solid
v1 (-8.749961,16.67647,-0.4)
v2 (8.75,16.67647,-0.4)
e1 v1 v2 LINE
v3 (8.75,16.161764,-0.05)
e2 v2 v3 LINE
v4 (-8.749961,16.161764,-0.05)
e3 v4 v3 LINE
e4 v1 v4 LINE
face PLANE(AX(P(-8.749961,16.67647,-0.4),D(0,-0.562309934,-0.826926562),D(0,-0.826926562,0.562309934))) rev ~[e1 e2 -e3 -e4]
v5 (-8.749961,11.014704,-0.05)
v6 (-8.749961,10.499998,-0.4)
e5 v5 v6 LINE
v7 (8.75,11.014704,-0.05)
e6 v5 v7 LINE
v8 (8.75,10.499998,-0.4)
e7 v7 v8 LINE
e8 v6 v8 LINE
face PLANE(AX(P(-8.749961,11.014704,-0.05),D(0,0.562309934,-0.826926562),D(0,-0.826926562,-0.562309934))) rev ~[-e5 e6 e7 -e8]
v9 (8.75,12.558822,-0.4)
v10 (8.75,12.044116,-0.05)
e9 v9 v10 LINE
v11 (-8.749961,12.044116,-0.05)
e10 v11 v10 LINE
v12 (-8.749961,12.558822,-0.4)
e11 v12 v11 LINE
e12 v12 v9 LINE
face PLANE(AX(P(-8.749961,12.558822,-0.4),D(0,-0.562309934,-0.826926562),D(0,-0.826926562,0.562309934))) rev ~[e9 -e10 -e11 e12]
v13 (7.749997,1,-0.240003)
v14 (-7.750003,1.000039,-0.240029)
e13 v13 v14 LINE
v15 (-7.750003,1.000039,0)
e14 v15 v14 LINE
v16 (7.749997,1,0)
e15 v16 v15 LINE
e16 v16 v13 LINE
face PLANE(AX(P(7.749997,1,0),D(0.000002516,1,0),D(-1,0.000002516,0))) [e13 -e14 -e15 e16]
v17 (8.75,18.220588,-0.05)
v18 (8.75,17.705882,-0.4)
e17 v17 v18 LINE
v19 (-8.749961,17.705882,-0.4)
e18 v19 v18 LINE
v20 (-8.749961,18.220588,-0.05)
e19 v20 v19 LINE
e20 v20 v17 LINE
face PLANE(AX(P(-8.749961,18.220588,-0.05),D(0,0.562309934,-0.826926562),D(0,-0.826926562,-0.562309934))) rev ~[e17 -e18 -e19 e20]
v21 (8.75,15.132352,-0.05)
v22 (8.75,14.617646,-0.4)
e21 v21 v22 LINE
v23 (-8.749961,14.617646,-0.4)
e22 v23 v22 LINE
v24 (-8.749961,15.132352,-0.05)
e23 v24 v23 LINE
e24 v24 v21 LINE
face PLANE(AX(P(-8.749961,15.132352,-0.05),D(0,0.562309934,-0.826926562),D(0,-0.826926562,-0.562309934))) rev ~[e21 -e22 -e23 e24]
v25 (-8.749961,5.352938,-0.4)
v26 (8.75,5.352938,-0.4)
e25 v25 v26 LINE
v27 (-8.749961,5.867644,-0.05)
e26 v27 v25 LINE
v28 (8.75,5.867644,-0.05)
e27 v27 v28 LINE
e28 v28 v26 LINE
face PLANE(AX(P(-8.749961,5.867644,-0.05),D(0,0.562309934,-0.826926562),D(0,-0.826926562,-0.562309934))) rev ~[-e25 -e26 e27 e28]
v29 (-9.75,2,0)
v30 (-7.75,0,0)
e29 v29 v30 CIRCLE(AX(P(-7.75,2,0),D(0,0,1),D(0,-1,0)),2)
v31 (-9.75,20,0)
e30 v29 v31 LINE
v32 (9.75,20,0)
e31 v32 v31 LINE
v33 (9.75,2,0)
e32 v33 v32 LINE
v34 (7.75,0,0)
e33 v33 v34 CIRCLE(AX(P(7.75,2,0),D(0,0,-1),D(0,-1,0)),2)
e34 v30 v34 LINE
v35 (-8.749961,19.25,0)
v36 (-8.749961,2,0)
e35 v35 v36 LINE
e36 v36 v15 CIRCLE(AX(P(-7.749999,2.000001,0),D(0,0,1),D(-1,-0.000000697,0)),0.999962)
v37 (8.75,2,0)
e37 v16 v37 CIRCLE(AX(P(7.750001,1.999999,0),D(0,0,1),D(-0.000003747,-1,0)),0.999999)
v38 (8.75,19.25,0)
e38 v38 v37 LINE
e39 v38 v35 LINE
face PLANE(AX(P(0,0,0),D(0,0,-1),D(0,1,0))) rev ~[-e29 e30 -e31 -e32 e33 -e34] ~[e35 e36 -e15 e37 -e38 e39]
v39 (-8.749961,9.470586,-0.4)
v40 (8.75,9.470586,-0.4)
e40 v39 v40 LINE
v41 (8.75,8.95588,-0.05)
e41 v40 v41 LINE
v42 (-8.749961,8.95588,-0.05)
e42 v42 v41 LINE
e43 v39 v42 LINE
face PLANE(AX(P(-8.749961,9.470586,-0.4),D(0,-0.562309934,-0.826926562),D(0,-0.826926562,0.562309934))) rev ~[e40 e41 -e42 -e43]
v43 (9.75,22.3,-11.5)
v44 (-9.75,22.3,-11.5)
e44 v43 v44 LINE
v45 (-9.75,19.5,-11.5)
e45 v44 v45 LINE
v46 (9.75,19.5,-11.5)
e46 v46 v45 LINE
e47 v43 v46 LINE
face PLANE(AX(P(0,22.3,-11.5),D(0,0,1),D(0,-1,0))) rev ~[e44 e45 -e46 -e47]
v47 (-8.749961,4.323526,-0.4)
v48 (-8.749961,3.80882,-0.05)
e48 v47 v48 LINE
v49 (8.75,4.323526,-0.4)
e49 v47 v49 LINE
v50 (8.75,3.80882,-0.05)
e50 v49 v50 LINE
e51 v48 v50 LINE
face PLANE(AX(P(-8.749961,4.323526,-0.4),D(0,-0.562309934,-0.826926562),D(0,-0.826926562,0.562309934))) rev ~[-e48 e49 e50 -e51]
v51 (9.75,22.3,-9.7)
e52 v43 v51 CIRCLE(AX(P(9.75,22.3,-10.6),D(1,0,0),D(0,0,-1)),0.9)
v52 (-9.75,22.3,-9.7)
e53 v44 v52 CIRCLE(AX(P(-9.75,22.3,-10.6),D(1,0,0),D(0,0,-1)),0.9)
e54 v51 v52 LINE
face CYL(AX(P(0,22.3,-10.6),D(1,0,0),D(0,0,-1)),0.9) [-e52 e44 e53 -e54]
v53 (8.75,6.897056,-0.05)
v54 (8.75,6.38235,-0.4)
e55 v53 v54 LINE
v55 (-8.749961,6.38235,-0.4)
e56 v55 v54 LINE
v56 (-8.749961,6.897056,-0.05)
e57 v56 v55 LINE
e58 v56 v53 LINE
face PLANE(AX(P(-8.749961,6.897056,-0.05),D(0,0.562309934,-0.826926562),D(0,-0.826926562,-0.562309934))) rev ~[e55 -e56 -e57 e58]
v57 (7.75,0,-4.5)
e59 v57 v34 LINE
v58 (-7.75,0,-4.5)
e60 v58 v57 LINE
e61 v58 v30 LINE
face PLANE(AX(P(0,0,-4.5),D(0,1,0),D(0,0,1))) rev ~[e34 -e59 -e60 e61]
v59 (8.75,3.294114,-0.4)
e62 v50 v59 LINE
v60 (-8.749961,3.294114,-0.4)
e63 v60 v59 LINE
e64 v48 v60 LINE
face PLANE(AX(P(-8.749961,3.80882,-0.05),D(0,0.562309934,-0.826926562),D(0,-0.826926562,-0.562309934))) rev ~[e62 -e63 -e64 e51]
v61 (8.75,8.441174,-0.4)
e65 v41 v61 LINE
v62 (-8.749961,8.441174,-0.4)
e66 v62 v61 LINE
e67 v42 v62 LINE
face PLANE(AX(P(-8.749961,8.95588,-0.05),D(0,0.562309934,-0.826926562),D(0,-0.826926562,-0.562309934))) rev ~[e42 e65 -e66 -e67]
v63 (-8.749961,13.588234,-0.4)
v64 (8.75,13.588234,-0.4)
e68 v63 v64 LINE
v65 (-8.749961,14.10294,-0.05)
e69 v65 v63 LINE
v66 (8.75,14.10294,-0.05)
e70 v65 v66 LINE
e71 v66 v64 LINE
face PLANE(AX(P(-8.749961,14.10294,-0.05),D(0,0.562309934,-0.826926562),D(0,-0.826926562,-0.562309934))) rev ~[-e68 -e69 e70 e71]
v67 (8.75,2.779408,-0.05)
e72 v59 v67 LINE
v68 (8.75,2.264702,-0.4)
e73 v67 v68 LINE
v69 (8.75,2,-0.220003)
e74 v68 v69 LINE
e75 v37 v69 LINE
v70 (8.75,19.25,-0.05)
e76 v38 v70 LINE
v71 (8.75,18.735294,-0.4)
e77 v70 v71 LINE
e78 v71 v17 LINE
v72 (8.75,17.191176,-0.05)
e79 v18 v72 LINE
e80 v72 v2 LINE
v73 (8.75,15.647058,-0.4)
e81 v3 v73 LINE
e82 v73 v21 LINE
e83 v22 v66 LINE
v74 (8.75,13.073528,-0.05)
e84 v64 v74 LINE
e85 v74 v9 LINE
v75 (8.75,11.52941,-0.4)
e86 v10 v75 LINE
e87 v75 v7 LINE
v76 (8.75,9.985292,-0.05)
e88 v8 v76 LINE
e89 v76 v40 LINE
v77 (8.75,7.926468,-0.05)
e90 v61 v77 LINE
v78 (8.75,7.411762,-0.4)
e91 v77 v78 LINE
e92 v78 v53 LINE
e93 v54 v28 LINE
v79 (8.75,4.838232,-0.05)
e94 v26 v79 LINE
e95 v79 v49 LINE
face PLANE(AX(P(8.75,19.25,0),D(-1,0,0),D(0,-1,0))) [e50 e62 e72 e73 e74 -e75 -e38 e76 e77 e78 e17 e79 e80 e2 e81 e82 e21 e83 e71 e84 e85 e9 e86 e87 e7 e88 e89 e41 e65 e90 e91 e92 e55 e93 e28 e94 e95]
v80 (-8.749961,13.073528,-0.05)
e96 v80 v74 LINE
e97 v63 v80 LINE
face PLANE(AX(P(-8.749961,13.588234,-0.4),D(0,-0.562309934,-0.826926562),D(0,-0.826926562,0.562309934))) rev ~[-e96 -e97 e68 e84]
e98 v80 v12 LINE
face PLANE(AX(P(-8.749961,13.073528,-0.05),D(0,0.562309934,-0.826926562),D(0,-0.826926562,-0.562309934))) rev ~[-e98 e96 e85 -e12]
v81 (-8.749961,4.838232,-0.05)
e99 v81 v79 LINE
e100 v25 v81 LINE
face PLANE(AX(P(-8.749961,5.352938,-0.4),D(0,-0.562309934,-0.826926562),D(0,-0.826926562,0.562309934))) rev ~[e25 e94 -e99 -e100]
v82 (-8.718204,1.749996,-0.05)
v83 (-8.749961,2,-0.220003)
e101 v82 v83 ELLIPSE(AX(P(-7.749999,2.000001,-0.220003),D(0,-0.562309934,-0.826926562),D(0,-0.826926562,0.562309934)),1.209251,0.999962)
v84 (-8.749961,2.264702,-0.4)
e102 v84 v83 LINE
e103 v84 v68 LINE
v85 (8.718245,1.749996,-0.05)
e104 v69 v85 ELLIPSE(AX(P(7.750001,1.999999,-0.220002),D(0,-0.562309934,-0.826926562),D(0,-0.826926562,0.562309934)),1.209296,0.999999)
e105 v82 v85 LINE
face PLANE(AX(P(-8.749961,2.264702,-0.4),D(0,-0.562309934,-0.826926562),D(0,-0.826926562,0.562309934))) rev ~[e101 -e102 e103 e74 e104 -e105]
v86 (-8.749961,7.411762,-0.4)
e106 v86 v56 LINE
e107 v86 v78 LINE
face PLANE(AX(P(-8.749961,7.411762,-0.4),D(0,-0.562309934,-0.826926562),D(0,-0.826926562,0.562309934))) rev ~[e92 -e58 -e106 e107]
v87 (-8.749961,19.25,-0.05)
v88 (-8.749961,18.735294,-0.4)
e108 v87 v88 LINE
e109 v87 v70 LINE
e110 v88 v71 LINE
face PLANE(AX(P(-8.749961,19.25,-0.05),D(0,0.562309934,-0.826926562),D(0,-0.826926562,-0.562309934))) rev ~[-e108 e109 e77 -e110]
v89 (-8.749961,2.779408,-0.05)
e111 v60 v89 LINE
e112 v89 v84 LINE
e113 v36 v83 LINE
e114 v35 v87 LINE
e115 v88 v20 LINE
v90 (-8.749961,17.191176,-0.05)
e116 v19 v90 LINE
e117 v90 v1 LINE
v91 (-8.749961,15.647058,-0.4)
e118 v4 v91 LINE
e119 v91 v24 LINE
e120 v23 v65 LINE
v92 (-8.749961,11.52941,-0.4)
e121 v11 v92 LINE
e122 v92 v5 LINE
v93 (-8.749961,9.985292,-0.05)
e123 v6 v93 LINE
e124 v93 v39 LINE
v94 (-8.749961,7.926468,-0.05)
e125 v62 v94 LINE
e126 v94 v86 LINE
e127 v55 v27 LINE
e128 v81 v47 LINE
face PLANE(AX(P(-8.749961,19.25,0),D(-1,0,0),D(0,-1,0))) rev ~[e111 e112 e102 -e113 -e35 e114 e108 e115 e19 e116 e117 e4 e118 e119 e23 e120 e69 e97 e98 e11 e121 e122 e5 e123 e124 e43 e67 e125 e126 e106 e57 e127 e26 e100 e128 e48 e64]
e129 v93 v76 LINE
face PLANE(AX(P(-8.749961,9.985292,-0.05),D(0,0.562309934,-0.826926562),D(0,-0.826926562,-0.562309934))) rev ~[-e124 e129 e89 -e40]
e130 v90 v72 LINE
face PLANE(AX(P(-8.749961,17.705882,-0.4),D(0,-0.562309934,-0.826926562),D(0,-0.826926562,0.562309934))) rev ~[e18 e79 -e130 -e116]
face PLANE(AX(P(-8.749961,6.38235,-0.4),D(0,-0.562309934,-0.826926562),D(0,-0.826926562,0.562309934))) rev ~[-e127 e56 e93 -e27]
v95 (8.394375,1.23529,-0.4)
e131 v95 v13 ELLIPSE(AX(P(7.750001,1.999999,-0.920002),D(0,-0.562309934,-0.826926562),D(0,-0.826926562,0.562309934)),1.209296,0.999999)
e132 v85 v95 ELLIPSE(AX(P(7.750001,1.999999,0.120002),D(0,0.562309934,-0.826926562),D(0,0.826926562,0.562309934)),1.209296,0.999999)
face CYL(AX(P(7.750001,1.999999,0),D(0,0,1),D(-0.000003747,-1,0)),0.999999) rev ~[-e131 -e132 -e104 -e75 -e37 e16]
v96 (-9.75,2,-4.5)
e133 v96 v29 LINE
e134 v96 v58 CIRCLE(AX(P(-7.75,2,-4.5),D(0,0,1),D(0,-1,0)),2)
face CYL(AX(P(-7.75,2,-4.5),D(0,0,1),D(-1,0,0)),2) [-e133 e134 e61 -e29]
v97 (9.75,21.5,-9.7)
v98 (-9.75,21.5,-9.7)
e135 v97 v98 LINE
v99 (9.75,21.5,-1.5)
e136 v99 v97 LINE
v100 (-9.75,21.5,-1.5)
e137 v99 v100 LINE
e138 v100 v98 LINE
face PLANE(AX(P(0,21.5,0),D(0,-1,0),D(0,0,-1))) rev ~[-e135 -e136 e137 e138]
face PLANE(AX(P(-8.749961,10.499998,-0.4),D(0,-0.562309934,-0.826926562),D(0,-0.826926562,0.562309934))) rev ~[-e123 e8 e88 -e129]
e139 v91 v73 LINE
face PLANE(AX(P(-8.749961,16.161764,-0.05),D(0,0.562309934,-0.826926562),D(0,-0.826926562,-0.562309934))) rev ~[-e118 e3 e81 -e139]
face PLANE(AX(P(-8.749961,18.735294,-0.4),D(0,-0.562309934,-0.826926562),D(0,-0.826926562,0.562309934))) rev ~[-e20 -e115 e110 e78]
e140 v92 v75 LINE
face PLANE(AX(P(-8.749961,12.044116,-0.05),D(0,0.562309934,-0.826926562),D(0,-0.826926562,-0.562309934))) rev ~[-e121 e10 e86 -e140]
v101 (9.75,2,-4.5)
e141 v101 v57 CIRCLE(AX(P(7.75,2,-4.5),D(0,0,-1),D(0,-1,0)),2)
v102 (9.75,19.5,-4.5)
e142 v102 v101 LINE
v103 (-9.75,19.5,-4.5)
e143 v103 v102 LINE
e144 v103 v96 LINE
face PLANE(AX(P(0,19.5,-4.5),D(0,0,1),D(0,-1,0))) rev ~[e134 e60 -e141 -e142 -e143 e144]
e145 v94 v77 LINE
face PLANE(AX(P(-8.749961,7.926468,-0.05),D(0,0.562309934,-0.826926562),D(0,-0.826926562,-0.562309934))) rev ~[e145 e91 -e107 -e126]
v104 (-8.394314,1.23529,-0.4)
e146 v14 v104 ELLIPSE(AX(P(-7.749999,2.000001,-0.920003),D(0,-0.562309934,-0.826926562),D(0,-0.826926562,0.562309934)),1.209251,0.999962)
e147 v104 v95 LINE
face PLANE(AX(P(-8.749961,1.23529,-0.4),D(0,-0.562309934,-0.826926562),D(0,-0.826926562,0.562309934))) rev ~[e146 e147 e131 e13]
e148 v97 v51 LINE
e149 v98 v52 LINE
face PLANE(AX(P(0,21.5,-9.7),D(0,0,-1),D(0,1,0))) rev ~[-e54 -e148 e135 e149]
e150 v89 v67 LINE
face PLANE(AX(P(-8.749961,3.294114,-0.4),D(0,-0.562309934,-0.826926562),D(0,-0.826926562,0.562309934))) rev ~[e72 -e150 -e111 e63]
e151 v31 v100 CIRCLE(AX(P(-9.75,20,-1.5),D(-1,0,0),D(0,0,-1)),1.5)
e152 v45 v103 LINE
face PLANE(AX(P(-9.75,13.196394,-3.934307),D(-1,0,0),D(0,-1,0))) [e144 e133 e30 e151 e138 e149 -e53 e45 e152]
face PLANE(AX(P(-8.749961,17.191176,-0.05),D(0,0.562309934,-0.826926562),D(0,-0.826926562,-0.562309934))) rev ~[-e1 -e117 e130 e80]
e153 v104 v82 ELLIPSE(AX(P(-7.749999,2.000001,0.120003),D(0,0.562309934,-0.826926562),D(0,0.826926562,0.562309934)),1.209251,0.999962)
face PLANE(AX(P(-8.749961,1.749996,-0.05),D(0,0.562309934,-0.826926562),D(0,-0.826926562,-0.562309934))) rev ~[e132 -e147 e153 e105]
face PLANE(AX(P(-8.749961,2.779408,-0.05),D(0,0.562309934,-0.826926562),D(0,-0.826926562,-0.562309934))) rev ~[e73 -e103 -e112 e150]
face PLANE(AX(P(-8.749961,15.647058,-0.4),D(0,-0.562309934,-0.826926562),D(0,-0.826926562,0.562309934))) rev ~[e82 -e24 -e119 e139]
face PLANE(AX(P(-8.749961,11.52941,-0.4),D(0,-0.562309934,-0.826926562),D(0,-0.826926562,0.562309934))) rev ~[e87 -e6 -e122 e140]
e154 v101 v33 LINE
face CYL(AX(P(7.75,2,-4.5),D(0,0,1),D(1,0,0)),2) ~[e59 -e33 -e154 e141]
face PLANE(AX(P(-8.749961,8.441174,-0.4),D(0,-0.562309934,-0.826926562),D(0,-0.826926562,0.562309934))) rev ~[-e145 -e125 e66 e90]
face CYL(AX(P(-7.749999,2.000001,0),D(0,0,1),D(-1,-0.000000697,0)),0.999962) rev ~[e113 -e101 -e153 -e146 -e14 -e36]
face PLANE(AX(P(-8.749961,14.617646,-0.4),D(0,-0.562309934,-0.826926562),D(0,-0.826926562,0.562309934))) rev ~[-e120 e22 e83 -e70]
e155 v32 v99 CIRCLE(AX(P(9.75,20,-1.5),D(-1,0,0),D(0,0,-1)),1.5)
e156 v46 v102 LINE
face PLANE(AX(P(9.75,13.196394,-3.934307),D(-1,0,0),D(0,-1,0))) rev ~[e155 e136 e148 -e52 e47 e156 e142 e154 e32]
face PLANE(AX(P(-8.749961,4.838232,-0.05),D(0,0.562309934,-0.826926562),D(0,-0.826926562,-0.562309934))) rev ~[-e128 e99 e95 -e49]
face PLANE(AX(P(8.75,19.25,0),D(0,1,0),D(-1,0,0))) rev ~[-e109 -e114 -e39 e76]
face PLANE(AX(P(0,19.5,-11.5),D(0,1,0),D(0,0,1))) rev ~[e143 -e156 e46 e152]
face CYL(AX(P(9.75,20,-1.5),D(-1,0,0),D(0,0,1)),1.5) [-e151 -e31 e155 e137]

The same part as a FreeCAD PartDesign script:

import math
import FreeCAD as App
import Part
import Sketcher
Q = App.Units.Quantity


def edges_at(feature, points):
    """Names of the edges that pass closest to the given points."""
    edges = feature.Shape.Edges
    near = lambda p: min(range(len(edges)), key=lambda i: edges[i].distToShape(Part.Vertex(*p))[0])
    return sorted({f"Edge{near(p) + 1}" for p in points})


def add_polygon(sketch, points):
    """Adds a closed chain of lines whose ends are joined by coincident constraints."""
    first, n = sketch.GeometryCount, len(points)
    for a, b in zip(points, points[1:] + points[:1]):
        sketch.addGeometry(Part.LineSegment(App.Vector(*a, 0), App.Vector(*b, 0)), False)
    for i in range(n):
        sketch.addConstraint(Sketcher.Constraint("Coincident", first + i, 2, first + (i + 1) % n, 1))

doc = App.newDocument("Part")
body = doc.addObject("PartDesign::Body", "Body")

# Sketch on YZ plane
sketch1 = body.newObject("Sketcher::SketchObject", "Sketch")
sketch1.AttachmentSupport = (doc.getObject("YZ_Plane"), [""])
sketch1.MapMode = "FlatFace"
sketch1.addGeometry([
    Part.LineSegment(App.Vector(21.5, 0, 0), App.Vector(0, 0, 0)),  # 0
    Part.LineSegment(App.Vector(0, 0, 0), App.Vector(0, -4.5, 0)),  # 1
    Part.LineSegment(App.Vector(0, -4.5, 0), App.Vector(19.5, -4.5, 0)),  # 2
    Part.LineSegment(App.Vector(19.5, -4.5, 0), App.Vector(19.5, -11.5, 0)),  # 3
    Part.LineSegment(App.Vector(19.5, -11.5, 0), App.Vector(22.3, -11.5, 0)),  # 4
    Part.ArcOfCircle(Part.Circle(App.Vector(22.3, -10.6, 0), App.Vector(0, 0, 1), 0.9), math.radians(-90), math.radians(90)),  # 5
    Part.LineSegment(App.Vector(22.3, -9.7, 0), App.Vector(21.5, -9.7, 0)),  # 6
    Part.LineSegment(App.Vector(21.5, -9.7, 0), App.Vector(21.5, 0, 0)),  # 7
], False)
sketch1.addConstraint([
    Sketcher.Constraint("Coincident", 0, 2, 1, 1),
    Sketcher.Constraint("Coincident", 1, 2, 2, 1),
    Sketcher.Constraint("Coincident", 2, 2, 3, 1),
    Sketcher.Constraint("Coincident", 3, 2, 4, 1),
    Sketcher.Constraint("Tangent", 4, 2, 5, 1),
    Sketcher.Constraint("Tangent", 5, 2, 6, 1),
    Sketcher.Constraint("Coincident", 6, 2, 7, 1),
    Sketcher.Constraint("Coincident", 7, 2, 0, 1),
    Sketcher.Constraint("Horizontal", 0),
    Sketcher.Constraint("Vertical", 1),
    Sketcher.Constraint("Horizontal", 2),
    Sketcher.Constraint("Vertical", 3),
    Sketcher.Constraint("Horizontal", 4),
    Sketcher.Constraint("Horizontal", 6),
    Sketcher.Constraint("Vertical", 7),
    Sketcher.Constraint("Coincident", 0, 2, -1, 1),
    Sketcher.Constraint("Radius", 5, Q("0.9 mm")),
    Sketcher.Constraint("DistanceY", 3, 2, 3, 1, Q("7 mm")),
    Sketcher.Constraint("DistanceX", 0, 2, 0, 1, Q("21.5 mm")),
    Sketcher.Constraint("DistanceX", 2, 1, 2, 2, Q("19.5 mm")),
    Sketcher.Constraint("DistanceX", 4, 1, 4, 2, Q("2.8 mm")),
    Sketcher.Constraint("DistanceY", 1, 2, 1, 1, Q("4.5 mm")),
])
pad1 = body.newObject("PartDesign::Pad", "Pad")
pad1.Profile = sketch1
pad1.Length = 19.5
pad1.Midplane = True
doc.recompute()

fillet = body.newObject("PartDesign::Fillet", "Fillet")
fillet.Base = (pad1, edges_at(pad1, [(9.75, 0, -2.25), (-9.75, 0, -2.25)]))
fillet.Radius = 2

# Sketch on XY plane
sketch2 = body.newObject("Sketcher::SketchObject", "Sketch001")
sketch2.AttachmentSupport = (doc.getObject("XY_Plane"), [""])
sketch2.MapMode = "FlatFace"
sketch2.addGeometry([
    Part.ArcOfCircle(Part.Circle(App.Vector(7.8, 2, 0), App.Vector(0, 0, 1), 1), math.radians(-90), math.radians(0)),  # 0
    Part.LineSegment(App.Vector(8.8, 2, 0), App.Vector(8.8, 19.2, 0)),  # 1
    Part.LineSegment(App.Vector(8.8, 19.2, 0), App.Vector(-8.7, 19.2, 0)),  # 2
    Part.LineSegment(App.Vector(-8.7, 19.2, 0), App.Vector(-8.7, 2, 0)),  # 3
    Part.ArcOfCircle(Part.Circle(App.Vector(-7.7, 2, 0), App.Vector(0, 0, 1), 1), math.radians(-180), math.radians(-90)),  # 4
    Part.LineSegment(App.Vector(-7.8, 1, 0), App.Vector(7.7, 1, 0)),  # 5
], False)
sketch2.addConstraint([
    Sketcher.Constraint("Tangent", 0, 2, 1, 1),
    Sketcher.Constraint("Coincident", 1, 2, 2, 1),
    Sketcher.Constraint("Coincident", 2, 2, 3, 1),
    Sketcher.Constraint("Tangent", 3, 2, 4, 1),
    Sketcher.Constraint("Tangent", 4, 2, 5, 1),
    Sketcher.Constraint("Tangent", 5, 2, 0, 1),
    Sketcher.Constraint("Vertical", 1),
    Sketcher.Constraint("Horizontal", 2),
    Sketcher.Constraint("Vertical", 3),
    Sketcher.Constraint("Symmetric", 0, 3, 4, 3, -2),
    Sketcher.Constraint("Radius", 0, Q("0.999999 mm")),
    Sketcher.Constraint("DistanceY", -1, 1, 0, 3, Q("1.999999 mm")),
    Sketcher.Constraint("Distance", 5, Q("15.5 mm")),
    Sketcher.Constraint("DistanceY", 1, 1, 1, 2, Q("17.25 mm")),
    Sketcher.Constraint("Radius", 4, Q("0.999962 mm")),
])
pocket1 = body.newObject("PartDesign::Pocket", "Pocket")
pocket1.Profile = sketch2
pocket1.Length = 0.5

# Sketch on YZ plane
sketch3 = body.newObject("Sketcher::SketchObject", "Sketch002")
sketch3.AttachmentSupport = (doc.getObject("YZ_Plane"), [""])
sketch3.MapMode = "FlatFace"
sketch3.AttachmentOffset = App.Placement(App.Vector(0, 0, -8.749961), App.Rotation())
add_polygon(sketch3, [(18.22, -0.05), (18.22, -0.5), (19.25, -0.5), (19.25, -0.05), (18.74, -0.4)])  # lines 0-4
sketch3.addConstraint([
    Sketcher.Constraint("Vertical", 0),
    Sketcher.Constraint("Horizontal", 1),
    Sketcher.Constraint("Vertical", 2),
    Sketcher.Constraint("Horizontal", 2, 2, 4, 2),
    Sketcher.Constraint("Equal", 3, 4),
    Sketcher.Constraint("DistanceY", 0, 2, 0, 1, Q("0.45 mm")),
    Sketcher.Constraint("DistanceY", 0, 2, -1, 1, Q("0.5 mm")),
    Sketcher.Constraint("DistanceY", 3, 2, -1, 1, Q("0.4 mm")),
    Sketcher.Constraint("DistanceX", -1, 1, 1, 2, Q("19.25 mm")),
    Sketcher.Constraint("DistanceX", 1, 1, 1, 2, Q("1.029412 mm")),
])
pad2 = body.newObject("PartDesign::Pad", "Pad001")
pad2.Profile = sketch3
pad2.Length = 17.499961
doc.recompute()

linearpattern = body.newObject("PartDesign::LinearPattern", "LinearPattern")
linearpattern.Originals = [pad2]
linearpattern.Direction = (doc.getObject("Y_Axis"), [""])
linearpattern.Mode = "offset"
linearpattern.Offset = 1.029412
linearpattern.Occurrences = 18
linearpattern.Reversed = True
body.Tip = linearpattern
doc.recompute()

fillet2 = body.newObject("PartDesign::Fillet", "Fillet001")
fillet2.Base = (linearpattern, edges_at(linearpattern, [(0, 21.5, 0)]))
fillet2.Radius = 1.5

doc.recompute()
